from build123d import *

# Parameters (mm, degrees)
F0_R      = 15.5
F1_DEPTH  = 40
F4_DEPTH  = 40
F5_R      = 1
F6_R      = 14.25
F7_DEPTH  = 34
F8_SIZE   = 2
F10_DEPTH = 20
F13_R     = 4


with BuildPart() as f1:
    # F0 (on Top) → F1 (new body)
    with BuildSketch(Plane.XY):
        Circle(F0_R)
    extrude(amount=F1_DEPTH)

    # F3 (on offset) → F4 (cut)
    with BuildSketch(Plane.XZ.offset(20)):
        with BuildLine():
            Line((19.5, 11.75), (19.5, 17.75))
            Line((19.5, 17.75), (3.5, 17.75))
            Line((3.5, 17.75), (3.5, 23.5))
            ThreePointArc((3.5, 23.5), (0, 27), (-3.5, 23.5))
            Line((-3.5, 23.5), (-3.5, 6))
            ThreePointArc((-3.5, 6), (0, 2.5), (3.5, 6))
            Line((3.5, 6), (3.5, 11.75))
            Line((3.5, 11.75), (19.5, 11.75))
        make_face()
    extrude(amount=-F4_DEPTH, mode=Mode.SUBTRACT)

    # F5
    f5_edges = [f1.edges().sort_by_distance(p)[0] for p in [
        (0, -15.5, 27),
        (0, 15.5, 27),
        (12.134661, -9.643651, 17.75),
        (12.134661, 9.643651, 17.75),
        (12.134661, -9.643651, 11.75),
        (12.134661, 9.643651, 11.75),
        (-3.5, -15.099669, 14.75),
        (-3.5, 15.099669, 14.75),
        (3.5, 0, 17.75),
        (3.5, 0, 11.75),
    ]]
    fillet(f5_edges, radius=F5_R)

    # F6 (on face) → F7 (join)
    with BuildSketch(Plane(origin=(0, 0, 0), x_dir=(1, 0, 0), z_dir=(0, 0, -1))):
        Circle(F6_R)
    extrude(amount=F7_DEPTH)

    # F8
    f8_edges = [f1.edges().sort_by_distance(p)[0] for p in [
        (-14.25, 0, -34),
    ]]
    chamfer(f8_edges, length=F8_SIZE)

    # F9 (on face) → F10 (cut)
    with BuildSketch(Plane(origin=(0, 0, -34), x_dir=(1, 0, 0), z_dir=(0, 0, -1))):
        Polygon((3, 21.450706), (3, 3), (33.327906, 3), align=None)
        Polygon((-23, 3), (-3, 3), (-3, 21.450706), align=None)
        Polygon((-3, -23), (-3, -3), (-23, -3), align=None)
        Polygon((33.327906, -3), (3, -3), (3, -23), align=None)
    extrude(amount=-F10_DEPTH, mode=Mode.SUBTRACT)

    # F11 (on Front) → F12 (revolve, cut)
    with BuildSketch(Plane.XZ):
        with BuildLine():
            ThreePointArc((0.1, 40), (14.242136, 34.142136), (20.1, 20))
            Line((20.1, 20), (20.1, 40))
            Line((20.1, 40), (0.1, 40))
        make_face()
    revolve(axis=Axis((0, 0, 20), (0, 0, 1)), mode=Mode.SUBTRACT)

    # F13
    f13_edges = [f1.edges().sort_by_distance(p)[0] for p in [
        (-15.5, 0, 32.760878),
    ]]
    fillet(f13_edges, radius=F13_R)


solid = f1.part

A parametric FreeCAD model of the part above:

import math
import FreeCAD as App
import Part
import Sketcher


def edges_at(feature, points):
    """Names of the edges that pass closest to the given points."""
    edges = feature.Shape.Edges
    near = lambda p: min(range(len(edges)), key=lambda i: edges[i].distToShape(Part.Vertex(*p))[0])
    return sorted({f"Edge{near(p) + 1}" for p in points})

doc = App.newDocument("Part")
body = doc.addObject("PartDesign::Body", "Body")

# Sketch on XY plane
sketch1 = doc.addObject("Sketcher::SketchObject", "Sketch")
body.addObject(sketch1)
sketch1.AttachmentSupport = (doc.XY_Plane, [""])
sketch1.MapMode = "FlatFace"
sketch1.addGeometry(Part.Circle(App.Vector(0, 0, 0), App.Vector(0, 0, 1), 16), False)
sketch1.addConstraint([
    Sketcher.Constraint("Coincident", 0, 3, -1, 1),
    Sketcher.Constraint("Diameter", 0, 31.0),
])
pad1 = doc.addObject("PartDesign::Pad", "Pad")
body.addObject(pad1)
pad1.Profile = sketch1
pad1.Length = 40

# Sketch on XZ plane
sketch2 = doc.addObject("Sketcher::SketchObject", "Sketch001")
body.addObject(sketch2)
sketch2.AttachmentSupport = (doc.XZ_Plane, [""])
sketch2.MapMode = "FlatFace"
sketch2.AttachmentOffset = App.Placement(App.Vector(0, 0, 20), App.Rotation())
sketch2.addGeometry([
    Part.LineSegment(App.Vector(19.5, 11.8, 0), App.Vector(19.5, 17.8, 0)),  # 0
    Part.LineSegment(App.Vector(19.5, 17.8, 0), App.Vector(3.5, 17.8, 0)),  # 1
    Part.LineSegment(App.Vector(3.5, 17.8, 0), App.Vector(3.5, 23.5, 0)),  # 2
    Part.ArcOfCircle(Part.Circle(App.Vector(0, 23.5, 0), App.Vector(0, 0, 1), 3.5), math.radians(0), math.radians(180)),  # 3
    Part.LineSegment(App.Vector(-3.5, 23.5, 0), App.Vector(-3.5, 6, 0)),  # 4
    Part.ArcOfCircle(Part.Circle(App.Vector(0, 6, 0), App.Vector(0, 0, 1), 3.5), math.radians(180), math.radians(360)),  # 5
    Part.LineSegment(App.Vector(3.5, 6, 0), App.Vector(3.5, 11.8, 0)),  # 6
    Part.LineSegment(App.Vector(3.5, 11.8, 0), App.Vector(19.5, 11.8, 0)),  # 7
], False)
sketch2.addConstraint([
    Sketcher.Constraint("Coincident", 0, 2, 1, 1),
    Sketcher.Constraint("Coincident", 1, 2, 2, 1),
    Sketcher.Constraint("Tangent", 2, 2, 3, 1),
    Sketcher.Constraint("Tangent", 3, 2, 4, 1),
    Sketcher.Constraint("Tangent", 4, 2, 5, 1),
    Sketcher.Constraint("Tangent", 5, 2, 6, 1),
    Sketcher.Constraint("Coincident", 6, 2, 7, 1),
    Sketcher.Constraint("Coincident", 7, 2, 0, 1),
    Sketcher.Constraint("Vertical", 0),
    Sketcher.Constraint("Horizontal", 1),
    Sketcher.Constraint("Vertical", 2),
    Sketcher.Constraint("Vertical", 4),
    Sketcher.Constraint("Vertical", 6),
    Sketcher.Constraint("Horizontal", 7),
    Sketcher.Constraint("Equal", 3, 5),
    Sketcher.Constraint("PointOnObject", 3, 3, -2),
    Sketcher.Constraint("Equal", 2, 6),
    Sketcher.Constraint("Radius", 3, 3.5),
    Sketcher.Constraint("DistanceX", 1, 2, 1, 1, 16.0),
    Sketcher.Constraint("DistanceY", 0, 1, 0, 2, 6.0),
    Sketcher.Constraint("DistanceY", 4, 2, 4, 1, 17.5),
    Sketcher.Constraint("DistanceY", -1, 1, 5, 3, 6.0),
])
pocket1 = doc.addObject("PartDesign::Pocket", "Pocket")
body.addObject(pocket1)
pocket1.Profile = sketch2
pocket1.Length = 40
doc.recompute()

fillet = doc.addObject("PartDesign::Fillet", "Fillet")
body.addObject(fillet)
fillet.Base = (pocket1, edges_at(pocket1, [
    (0, -15.5, 27),
    (0, 15.5, 27),
    (12.135, -9.644, 17.75),
    (12.135, 9.644, 17.75),
    (12.135, -9.644, 11.75),
    (12.135, 9.644, 11.75),
    (-3.5, -15.1, 14.75),
    (-3.5, 15.1, 14.75),
    (3.5, 0, 17.75),
    (3.5, 0, 11.75),
]))
fillet.Radius = 1

# Sketch on XY plane
sketch3 = doc.addObject("Sketcher::SketchObject", "Sketch002")
body.addObject(sketch3)
sketch3.AttachmentSupport = (doc.XY_Plane, [""])
sketch3.MapMode = "FlatFace"
sketch3.addGeometry(Part.Circle(App.Vector(0, 0, 0), App.Vector(0, 0, 1), 14), False)
sketch3.addConstraint([
    Sketcher.Constraint("Coincident", 0, 3, -1, 1),
    Sketcher.Constraint("Diameter", 0, 28.5),
])
pad2 = doc.addObject("PartDesign::Pad", "Pad001")
body.addObject(pad2)
pad2.Profile = sketch3
pad2.Length = 34
pad2.Reversed = True
doc.recompute()

chamfer = doc.addObject("PartDesign::Chamfer", "Chamfer")
body.addObject(chamfer)
chamfer.Base = (pad2, edges_at(pad2, [(-14.25, 0, -34)]))
chamfer.Size = 2

# Sketch on XY plane
sketch4 = doc.addObject("Sketcher::SketchObject", "Sketch003")
body.addObject(sketch4)
sketch4.AttachmentSupport = (doc.XY_Plane, [""])
sketch4.MapMode = "FlatFace"
sketch4.AttachmentOffset = App.Placement(App.Vector(0, 0, -34), App.Rotation())
sketch4.addGeometry([
    Part.LineSegment(App.Vector(3, -21, 0), App.Vector(3, -3, 0)),  # 0
    Part.LineSegment(App.Vector(3, -3, 0), App.Vector(33, -3, 0)),  # 1
    Part.LineSegment(App.Vector(33, -3, 0), App.Vector(3, -21, 0)),  # 2
    Part.LineSegment(App.Vector(-23, -3, 0), App.Vector(-3, -3, 0)),  # 3
    Part.LineSegment(App.Vector(-3, -3, 0), App.Vector(-3, -21, 0)),  # 4
    Part.LineSegment(App.Vector(-3, -21, 0), App.Vector(-23, -3, 0)),  # 5
    Part.LineSegment(App.Vector(-3, 23, 0), App.Vector(-3, 3, 0)),  # 6
    Part.LineSegment(App.Vector(-3, 3, 0), App.Vector(-23, 3, 0)),  # 7
    Part.LineSegment(App.Vector(-23, 3, 0), App.Vector(-3, 23, 0)),  # 8
    Part.LineSegment(App.Vector(33, 3, 0), App.Vector(3, 3, 0)),  # 9
    Part.LineSegment(App.Vector(3, 3, 0), App.Vector(3, 23, 0)),  # 10
    Part.LineSegment(App.Vector(3, 23, 0), App.Vector(33, 3, 0)),  # 11
], False)
sketch4.addConstraint([
    Sketcher.Constraint("Coincident", 0, 2, 1, 1),
    Sketcher.Constraint("Coincident", 1, 2, 2, 1),
    Sketcher.Constraint("Coincident", 2, 2, 0, 1),
    Sketcher.Constraint("Coincident", 3, 2, 4, 1),
    Sketcher.Constraint("Coincident", 4, 2, 5, 1),
    Sketcher.Constraint("Coincident", 5, 2, 3, 1),
    Sketcher.Constraint("Coincident", 6, 2, 7, 1),
    Sketcher.Constraint("Coincident", 7, 2, 8, 1),
    Sketcher.Constraint("Coincident", 8, 2, 6, 1),
    Sketcher.Constraint("Coincident", 9, 2, 10, 1),
    Sketcher.Constraint("Coincident", 10, 2, 11, 1),
    Sketcher.Constraint("Coincident", 11, 2, 9, 1),
    Sketcher.Constraint("Vertical", 0),
    Sketcher.Constraint("Horizontal", 1),
    Sketcher.Constraint("Horizontal", 3),
    Sketcher.Constraint("Vertical", 4),
    Sketcher.Constraint("Vertical", 6),
    Sketcher.Constraint("Horizontal", 7),
    Sketcher.Constraint("Horizontal", 9),
    Sketcher.Constraint("Vertical", 10),
    Sketcher.Constraint("Symmetric", 0, 2, 6, 2, -1, 1),
    Sketcher.Constraint("Symmetric", 3, 2, 9, 2, -1, 1),
    Sketcher.Constraint("Symmetric", 0, 2, 3, 2, -2),
    Sketcher.Constraint("Horizontal", 2, 2, 4, 2),
    Sketcher.Constraint("Horizontal", 8, 2, 10, 2),
    Sketcher.Constraint("Vertical", 5, 2, 7, 2),
    Sketcher.Constraint("Vertical", 1, 2, 11, 2),
    Sketcher.Constraint("Equal", 7, 6),
    Sketcher.Constraint("DistanceX", 3, 1, 3, 2, 20.0),
    Sketcher.Constraint("DistanceX", -1, 1, 0, 2, 3.0),
    Sketcher.Constraint("DistanceY", 0, 2, -1, 1, 3.0),
    Sketcher.Constraint("DistanceX", 1, 1, 1, 2, 30.327906),
    Sketcher.Constraint("DistanceY", 0, 1, 0, 2, 18.450706),
])
pocket2 = doc.addObject("PartDesign::Pocket", "Pocket001")
body.addObject(pocket2)
pocket2.Profile = sketch4
pocket2.Length = 20
pocket2.Reversed = True

# Sketch on XZ plane
sketch5 = doc.addObject("Sketcher::SketchObject", "Sketch004")
body.addObject(sketch5)
sketch5.AttachmentSupport = (doc.XZ_Plane, [""])
sketch5.MapMode = "FlatFace"
sketch5.addGeometry([
    Part.ArcOfCircle(Part.Circle(App.Vector(0, 20, 0), App.Vector(0, 0, 1), 20), math.radians(0), math.radians(90)),
    Part.LineSegment(App.Vector(20, 20, 0), App.Vector(20, 40, 0)),
    Part.LineSegment(App.Vector(20, 40, 0), App.Vector(0, 40, 0)),
], False)
sketch5.addConstraint([
    Sketcher.Constraint("Tangent", 0, 1, 1, 1),
    Sketcher.Constraint("Coincident", 1, 2, 2, 1),
    Sketcher.Constraint("Tangent", 2, 2, 0, 2),
    Sketcher.Constraint("Vertical", 1),
    Sketcher.Constraint("Horizontal", 2),
    Sketcher.Constraint("Radius", 0, 19.999999),
    Sketcher.Constraint("DistanceY", -1, 1, 0, 3, 20.000001),
    Sketcher.Constraint("DistanceX", -1, 1, 0, 3, 0.100001),
])
groove = doc.addObject("PartDesign::Groove", "Groove")
body.addObject(groove)
groove.Profile = sketch5
groove.ReferenceAxis = (sketch5, ["V_Axis"])
groove.Angle = 360
doc.recompute()

fillet2 = doc.addObject("PartDesign::Fillet", "Fillet001")
body.addObject(fillet2)
fillet2.Base = (groove, edges_at(groove, [(-15.5, 0, 32.761)]))
fillet2.Radius = 4

doc.recompute()
